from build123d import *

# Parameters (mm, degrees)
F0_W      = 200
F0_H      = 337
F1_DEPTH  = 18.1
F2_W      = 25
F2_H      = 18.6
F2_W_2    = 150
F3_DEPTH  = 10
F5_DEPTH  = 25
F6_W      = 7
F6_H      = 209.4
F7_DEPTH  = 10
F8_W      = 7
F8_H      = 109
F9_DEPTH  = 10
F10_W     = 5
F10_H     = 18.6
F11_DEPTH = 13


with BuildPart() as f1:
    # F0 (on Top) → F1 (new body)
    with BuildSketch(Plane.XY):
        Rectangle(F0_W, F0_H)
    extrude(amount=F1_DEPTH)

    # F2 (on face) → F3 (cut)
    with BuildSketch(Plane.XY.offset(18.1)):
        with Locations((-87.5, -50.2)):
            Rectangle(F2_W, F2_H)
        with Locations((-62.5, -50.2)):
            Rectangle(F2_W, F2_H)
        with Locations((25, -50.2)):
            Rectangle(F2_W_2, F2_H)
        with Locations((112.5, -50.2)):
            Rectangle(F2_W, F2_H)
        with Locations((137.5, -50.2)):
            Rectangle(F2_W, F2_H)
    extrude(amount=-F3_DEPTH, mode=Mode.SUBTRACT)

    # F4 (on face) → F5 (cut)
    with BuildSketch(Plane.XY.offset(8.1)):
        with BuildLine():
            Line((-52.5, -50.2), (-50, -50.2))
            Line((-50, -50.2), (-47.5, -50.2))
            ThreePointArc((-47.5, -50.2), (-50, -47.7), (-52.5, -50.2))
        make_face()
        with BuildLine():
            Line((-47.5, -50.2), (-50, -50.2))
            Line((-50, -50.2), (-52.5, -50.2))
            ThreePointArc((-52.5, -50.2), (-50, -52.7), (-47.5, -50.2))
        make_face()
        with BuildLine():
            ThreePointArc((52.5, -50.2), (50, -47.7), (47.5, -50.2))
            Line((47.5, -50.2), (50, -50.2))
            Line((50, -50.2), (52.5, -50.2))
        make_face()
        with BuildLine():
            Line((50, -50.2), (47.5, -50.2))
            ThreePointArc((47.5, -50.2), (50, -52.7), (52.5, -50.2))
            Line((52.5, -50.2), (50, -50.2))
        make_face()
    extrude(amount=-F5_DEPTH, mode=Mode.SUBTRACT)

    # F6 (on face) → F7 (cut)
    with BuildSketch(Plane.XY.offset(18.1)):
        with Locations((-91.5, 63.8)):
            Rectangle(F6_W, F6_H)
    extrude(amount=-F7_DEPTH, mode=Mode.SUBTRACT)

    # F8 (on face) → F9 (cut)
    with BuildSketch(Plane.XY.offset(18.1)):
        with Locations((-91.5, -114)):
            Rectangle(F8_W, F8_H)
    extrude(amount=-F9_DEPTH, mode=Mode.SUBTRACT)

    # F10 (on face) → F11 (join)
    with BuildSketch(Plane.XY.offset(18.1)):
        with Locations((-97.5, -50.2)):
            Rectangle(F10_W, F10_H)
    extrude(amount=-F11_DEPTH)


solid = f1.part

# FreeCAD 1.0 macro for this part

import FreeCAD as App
import Part
import Sketcher
from FreeCAD import Vector
Q = App.Units.Quantity

doc = App.newDocument("Part")
params = doc.addObject("Spreadsheet::Sheet", "Params")
for row, (alias, value) in enumerate([
    ("sketch1_width", "200 mm"),
    ("sketch1_height", "337 mm"),
    ("pad1_length", "18.1 mm"),
    ("sketch2_width", "250 mm"),
    ("sketch2_height", "18.6 mm"),
    ("pocket1_length", "10 mm"),
    ("sketch3_diameter", "5 mm"),
    ("pocket2_length", "25 mm"),
    ("sketch4_width", "7 mm"),
    ("sketch4_height", "209.4 mm"),
    ("pocket3_length", "10 mm"),
    ("sketch5_width", "7 mm"),
    ("sketch5_height", "109 mm"),
    ("pocket4_length", "10 mm"),
    ("sketch6_width", "5 mm"),
    ("sketch6_height", "18.6 mm"),
    ("pad2_length", "13 mm"),
], start=1):
    params.set(f"A{row}", alias)
    params.set(f"B{row}", "=" + value)
    params.setAlias(f"B{row}", alias)

body = doc.addObject("PartDesign::Body", "Body")

sketch1 = body.newObject("Sketcher::SketchObject", "Sketch")
sketch1.AttachmentSupport = (doc.getObject("XY_Plane"), [""])
sketch1.MapMode = "FlatFace"
sketch1.addGeometry(Part.LineSegment(Vector(-100, 168, 0), Vector(-100, -168, 0)), False)
sketch1.addGeometry(Part.LineSegment(Vector(-100, -168, 0), Vector(100, -168, 0)), False)
sketch1.addGeometry(Part.LineSegment(Vector(100, -168, 0), Vector(100, 168, 0)), False)
sketch1.addGeometry(Part.LineSegment(Vector(100, 168, 0), Vector(-100, 168, 0)), False)
sketch1.addConstraint(Sketcher.Constraint("Coincident", 0, 2, 1, 1))
sketch1.addConstraint(Sketcher.Constraint("Coincident", 1, 2, 2, 1))
sketch1.addConstraint(Sketcher.Constraint("Coincident", 2, 2, 3, 1))
sketch1.addConstraint(Sketcher.Constraint("Coincident", 3, 2, 0, 1))
sketch1.addConstraint(Sketcher.Constraint("Vertical", 0))
sketch1.addConstraint(Sketcher.Constraint("Horizontal", 1))
sketch1.addConstraint(Sketcher.Constraint("Vertical", 2))
sketch1.addConstraint(Sketcher.Constraint("Horizontal", 3))
sketch1.addConstraint(Sketcher.Constraint("Symmetric", 0, 2, 2, 2, -1, 1))
sketch1.addConstraint(Sketcher.Constraint("DistanceX", 1, 1, 1, 2, Q("200 mm")))
sketch1.addConstraint(Sketcher.Constraint("DistanceY", 0, 2, 0, 1, Q("337 mm")))
sketch1.setExpression("Constraints[9]", "Params.sketch1_width")
sketch1.setExpression("Constraints[10]", "Params.sketch1_height")
pad1 = body.newObject("PartDesign::Pad", "Pad")
pad1.Profile = sketch1
pad1.setExpression("Length", "Params.pad1_length")

sketch2 = body.newObject("Sketcher::SketchObject", "Sketch001")
sketch2.AttachmentSupport = (doc.getObject("XY_Plane"), [""])
sketch2.MapMode = "FlatFace"
sketch2.AttachmentOffset = App.Placement(Vector(0, 0, 18.1), App.Rotation())
sketch2.addGeometry(Part.LineSegment(Vector(-100, -41, 0), Vector(-100, -60, 0)), False)
sketch2.addGeometry(Part.LineSegment(Vector(-100, -60, 0), Vector(150, -60, 0)), False)
sketch2.addGeometry(Part.LineSegment(Vector(150, -60, 0), Vector(150, -41, 0)), False)
sketch2.addGeometry(Part.LineSegment(Vector(150, -41, 0), Vector(-100, -41, 0)), False)
sketch2.addConstraint(Sketcher.Constraint("Coincident", 0, 2, 1, 1))
sketch2.addConstraint(Sketcher.Constraint("Coincident", 1, 2, 2, 1))
sketch2.addConstraint(Sketcher.Constraint("Coincident", 2, 2, 3, 1))
sketch2.addConstraint(Sketcher.Constraint("Coincident", 3, 2, 0, 1))
sketch2.addConstraint(Sketcher.Constraint("Vertical", 0))
sketch2.addConstraint(Sketcher.Constraint("Horizontal", 1))
sketch2.addConstraint(Sketcher.Constraint("Vertical", 2))
sketch2.addConstraint(Sketcher.Constraint("Horizontal", 3))
sketch2.addConstraint(Sketcher.Constraint("DistanceX", 1, 1, 1, 2, Q("250 mm")))
sketch2.addConstraint(Sketcher.Constraint("DistanceY", 0, 2, 0, 1, Q("18.6 mm")))
sketch2.addConstraint(Sketcher.Constraint("DistanceX", 0, 2, -1, 1, Q("100 mm")))
sketch2.addConstraint(Sketcher.Constraint("DistanceY", 0, 2, -1, 1, Q("59.5 mm")))
sketch2.setExpression("Constraints[8]", "Params.sketch2_width")
sketch2.setExpression("Constraints[9]", "Params.sketch2_height")
pocket1 = body.newObject("PartDesign::Pocket", "Pocket")
pocket1.Profile = sketch2
pocket1.setExpression("Length", "Params.pocket1_length")

sketch3 = body.newObject("Sketcher::SketchObject", "Sketch002")
sketch3.AttachmentSupport = (doc.getObject("XY_Plane"), [""])
sketch3.MapMode = "FlatFace"
sketch3.AttachmentOffset = App.Placement(Vector(0, 0, 8.1), App.Rotation())
sketch3.addGeometry(Part.Circle(Vector(-50, -50.2, 0), Vector(0, 0, 1), 2.5), False)
sketch3.addGeometry(Part.Circle(Vector(50, -50.2, 0), Vector(0, 0, 1), 2.5), False)
sketch3.addConstraint(Sketcher.Constraint("Equal", 0, 1))
sketch3.addConstraint(Sketcher.Constraint("Symmetric", 0, 3, 1, 3, -2))
sketch3.addConstraint(Sketcher.Constraint("Diameter", 0, Q("5 mm")))
sketch3.addConstraint(Sketcher.Constraint("DistanceX", 0, 3, -1, 1, Q("50 mm")))
sketch3.addConstraint(Sketcher.Constraint("DistanceY", 0, 3, -1, 1, Q("50.2 mm")))
sketch3.setExpression("Constraints[2]", "Params.sketch3_diameter")
pocket2 = body.newObject("PartDesign::Pocket", "Pocket001")
pocket2.Profile = sketch3
pocket2.setExpression("Length", "Params.pocket2_length")

sketch4 = body.newObject("Sketcher::SketchObject", "Sketch003")
sketch4.AttachmentSupport = (doc.getObject("XY_Plane"), [""])
sketch4.MapMode = "FlatFace"
sketch4.AttachmentOffset = App.Placement(Vector(0, 0, 18.1), App.Rotation())
sketch4.addGeometry(Part.LineSegment(Vector(-95, 168, 0), Vector(-95, -41, 0)), False)
sketch4.addGeometry(Part.LineSegment(Vector(-95, -41, 0), Vector(-88, -41, 0)), False)
sketch4.addGeometry(Part.LineSegment(Vector(-88, -41, 0), Vector(-88, 168, 0)), False)
sketch4.addGeometry(Part.LineSegment(Vector(-88, 168, 0), Vector(-95, 168, 0)), False)
sketch4.addConstraint(Sketcher.Constraint("Coincident", 0, 2, 1, 1))
sketch4.addConstraint(Sketcher.Constraint("Coincident", 1, 2, 2, 1))
sketch4.addConstraint(Sketcher.Constraint("Coincident", 2, 2, 3, 1))
sketch4.addConstraint(Sketcher.Constraint("Coincident", 3, 2, 0, 1))
sketch4.addConstraint(Sketcher.Constraint("Vertical", 0))
sketch4.addConstraint(Sketcher.Constraint("Horizontal", 1))
sketch4.addConstraint(Sketcher.Constraint("Vertical", 2))
sketch4.addConstraint(Sketcher.Constraint("Horizontal", 3))
sketch4.addConstraint(Sketcher.Constraint("DistanceX", 1, 1, 1, 2, Q("7 mm")))
sketch4.addConstraint(Sketcher.Constraint("DistanceY", 0, 2, 0, 1, Q("209.4 mm")))
sketch4.addConstraint(Sketcher.Constraint("DistanceX", 0, 2, -1, 1, Q("95 mm")))
sketch4.addConstraint(Sketcher.Constraint("DistanceY", 0, 2, -1, 1, Q("40.9 mm")))
sketch4.setExpression("Constraints[8]", "Params.sketch4_width")
sketch4.setExpression("Constraints[9]", "Params.sketch4_height")
pocket3 = body.newObject("PartDesign::Pocket", "Pocket002")
pocket3.Profile = sketch4
pocket3.setExpression("Length", "Params.pocket3_length")

sketch5 = body.newObject("Sketcher::SketchObject", "Sketch004")
sketch5.AttachmentSupport = (doc.getObject("XY_Plane"), [""])
sketch5.MapMode = "FlatFace"
sketch5.AttachmentOffset = App.Placement(Vector(0, 0, 18.1), App.Rotation())
sketch5.addGeometry(Part.LineSegment(Vector(-95, -60, 0), Vector(-95, -168, 0)), False)
sketch5.addGeometry(Part.LineSegment(Vector(-95, -168, 0), Vector(-88, -168, 0)), False)
sketch5.addGeometry(Part.LineSegment(Vector(-88, -168, 0), Vector(-88, -60, 0)), False)
sketch5.addGeometry(Part.LineSegment(Vector(-88, -60, 0), Vector(-95, -60, 0)), False)
sketch5.addConstraint(Sketcher.Constraint("Coincident", 0, 2, 1, 1))
sketch5.addConstraint(Sketcher.Constraint("Coincident", 1, 2, 2, 1))
sketch5.addConstraint(Sketcher.Constraint("Coincident", 2, 2, 3, 1))
sketch5.addConstraint(Sketcher.Constraint("Coincident", 3, 2, 0, 1))
sketch5.addConstraint(Sketcher.Constraint("Vertical", 0))
sketch5.addConstraint(Sketcher.Constraint("Horizontal", 1))
sketch5.addConstraint(Sketcher.Constraint("Vertical", 2))
sketch5.addConstraint(Sketcher.Constraint("Horizontal", 3))
sketch5.addConstraint(Sketcher.Constraint("DistanceX", 1, 1, 1, 2, Q("7 mm")))
sketch5.addConstraint(Sketcher.Constraint("DistanceY", 0, 2, 0, 1, Q("109 mm")))
sketch5.addConstraint(Sketcher.Constraint("DistanceX", 0, 2, -1, 1, Q("95 mm")))
sketch5.addConstraint(Sketcher.Constraint("DistanceY", 0, 2, -1, 1, Q("168.5 mm")))
sketch5.setExpression("Constraints[8]", "Params.sketch5_width")
sketch5.setExpression("Constraints[9]", "Params.sketch5_height")
pocket4 = body.newObject("PartDesign::Pocket", "Pocket003")
pocket4.Profile = sketch5
pocket4.setExpression("Length", "Params.pocket4_length")

sketch6 = body.newObject("Sketcher::SketchObject", "Sketch005")
sketch6.AttachmentSupport = (doc.getObject("XY_Plane"), [""])
sketch6.MapMode = "FlatFace"
sketch6.AttachmentOffset = App.Placement(Vector(0, 0, 18.1), App.Rotation())
sketch6.addGeometry(Part.LineSegment(Vector(-100, -41, 0), Vector(-100, -60, 0)), False)
sketch6.addGeometry(Part.LineSegment(Vector(-100, -60, 0), Vector(-95, -60, 0)), False)
sketch6.addGeometry(Part.LineSegment(Vector(-95, -60, 0), Vector(-95, -41, 0)), False)
sketch6.addGeometry(Part.LineSegment(Vector(-95, -41, 0), Vector(-100, -41, 0)), False)
sketch6.addConstraint(Sketcher.Constraint("Coincident", 0, 2, 1, 1))
sketch6.addConstraint(Sketcher.Constraint("Coincident", 1, 2, 2, 1))
sketch6.addConstraint(Sketcher.Constraint("Coincident", 2, 2, 3, 1))
sketch6.addConstraint(Sketcher.Constraint("Coincident", 3, 2, 0, 1))
sketch6.addConstraint(Sketcher.Constraint("Vertical", 0))
sketch6.addConstraint(Sketcher.Constraint("Horizontal", 1))
sketch6.addConstraint(Sketcher.Constraint("Vertical", 2))
sketch6.addConstraint(Sketcher.Constraint("Horizontal", 3))
sketch6.addConstraint(Sketcher.Constraint("DistanceX", 1, 1, 1, 2, Q("5 mm")))
sketch6.addConstraint(Sketcher.Constraint("DistanceY", 0, 2, 0, 1, Q("18.6 mm")))
sketch6.addConstraint(Sketcher.Constraint("DistanceX", 0, 2, -1, 1, Q("100 mm")))
sketch6.addConstraint(Sketcher.Constraint("DistanceY", 0, 2, -1, 1, Q("59.5 mm")))
sketch6.setExpression("Constraints[8]", "Params.sketch6_width")
sketch6.setExpression("Constraints[9]", "Params.sketch6_height")
pad2 = body.newObject("PartDesign::Pad", "Pad001")
pad2.Profile = sketch6
pad2.setExpression("Length", "Params.pad2_length")
pad2.Reversed = True

doc.recompute()
